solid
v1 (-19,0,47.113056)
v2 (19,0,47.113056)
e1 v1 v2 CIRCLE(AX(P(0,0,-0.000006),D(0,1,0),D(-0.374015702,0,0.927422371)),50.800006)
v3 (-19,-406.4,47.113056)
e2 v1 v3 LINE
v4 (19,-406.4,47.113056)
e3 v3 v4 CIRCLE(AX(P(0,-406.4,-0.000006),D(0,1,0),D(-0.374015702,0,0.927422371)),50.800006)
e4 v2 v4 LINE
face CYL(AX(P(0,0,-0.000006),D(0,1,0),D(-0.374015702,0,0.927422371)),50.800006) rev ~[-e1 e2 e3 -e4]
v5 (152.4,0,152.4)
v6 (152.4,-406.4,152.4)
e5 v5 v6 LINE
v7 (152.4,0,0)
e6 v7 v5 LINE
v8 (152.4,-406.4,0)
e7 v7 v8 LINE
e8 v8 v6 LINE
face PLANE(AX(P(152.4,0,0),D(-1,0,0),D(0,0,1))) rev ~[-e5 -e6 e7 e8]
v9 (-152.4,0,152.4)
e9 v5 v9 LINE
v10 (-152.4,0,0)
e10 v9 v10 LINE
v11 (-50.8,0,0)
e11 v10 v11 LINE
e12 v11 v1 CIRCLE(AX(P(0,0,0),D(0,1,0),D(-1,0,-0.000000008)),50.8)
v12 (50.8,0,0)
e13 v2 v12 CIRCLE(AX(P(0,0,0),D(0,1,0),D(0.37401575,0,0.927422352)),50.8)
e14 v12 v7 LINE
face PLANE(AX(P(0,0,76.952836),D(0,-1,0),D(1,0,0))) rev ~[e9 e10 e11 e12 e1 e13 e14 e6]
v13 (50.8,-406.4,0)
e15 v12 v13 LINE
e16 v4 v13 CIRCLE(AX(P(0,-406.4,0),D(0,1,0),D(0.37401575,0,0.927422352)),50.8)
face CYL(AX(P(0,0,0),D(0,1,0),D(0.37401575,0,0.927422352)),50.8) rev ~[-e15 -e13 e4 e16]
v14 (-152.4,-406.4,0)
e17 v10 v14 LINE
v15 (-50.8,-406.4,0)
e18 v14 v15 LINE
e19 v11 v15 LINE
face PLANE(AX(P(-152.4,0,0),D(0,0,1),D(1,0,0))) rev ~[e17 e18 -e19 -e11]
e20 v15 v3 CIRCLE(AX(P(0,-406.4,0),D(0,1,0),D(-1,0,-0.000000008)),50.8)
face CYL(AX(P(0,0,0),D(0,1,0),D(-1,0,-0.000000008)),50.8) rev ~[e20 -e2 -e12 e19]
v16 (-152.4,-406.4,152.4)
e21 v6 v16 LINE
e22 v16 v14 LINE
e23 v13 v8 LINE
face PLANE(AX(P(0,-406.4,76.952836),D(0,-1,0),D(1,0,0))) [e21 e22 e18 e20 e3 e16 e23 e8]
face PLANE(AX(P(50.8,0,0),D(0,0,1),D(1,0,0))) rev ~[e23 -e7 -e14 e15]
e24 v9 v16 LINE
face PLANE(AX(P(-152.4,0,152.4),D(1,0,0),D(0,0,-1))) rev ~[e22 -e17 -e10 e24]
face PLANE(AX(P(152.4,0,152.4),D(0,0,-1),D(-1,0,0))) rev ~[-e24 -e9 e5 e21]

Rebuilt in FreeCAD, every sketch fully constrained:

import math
import FreeCAD as App
import Part
import Sketcher
Q = App.Units.Quantity

doc = App.newDocument("Part")
body = doc.addObject("PartDesign::Body", "Body")

sketch1 = body.newObject("Sketcher::SketchObject", "Sketch")
sketch1.AttachmentSupport = (doc.getObject("XZ_Plane"), [""])
sketch1.MapMode = "FlatFace"
sketch1.addGeometry([
    Part.ArcOfCircle(Part.Circle(App.Vector(0, 0, 0), App.Vector(0, 0, 1), 51), math.radians(0), math.radians(68)),
    Part.LineSegment(App.Vector(51, 0, 0), App.Vector(152, 0, 0)),
    Part.LineSegment(App.Vector(152, 0, 0), App.Vector(152, 152, 0)),
    Part.LineSegment(App.Vector(152, 152, 0), App.Vector(-152, 152, 0)),
    Part.LineSegment(App.Vector(-152, 152, 0), App.Vector(-152, 0, 0)),
    Part.LineSegment(App.Vector(-152, 0, 0), App.Vector(-51, 0, 0)),
    Part.ArcOfCircle(Part.Circle(App.Vector(0, 0, 0), App.Vector(0, 0, 1), 51), math.radians(112), math.radians(180)),
    Part.ArcOfCircle(Part.Circle(App.Vector(0, 0, 0), App.Vector(0, 0, 1), 51), math.radians(68), math.radians(112)),
], False)
sketch1.addConstraint([
    Sketcher.Constraint("Coincident", 0, 1, 1, 1),
    Sketcher.Constraint("Coincident", 1, 2, 2, 1),
    Sketcher.Constraint("Coincident", 2, 2, 3, 1),
    Sketcher.Constraint("Coincident", 3, 2, 4, 1),
    Sketcher.Constraint("Coincident", 4, 2, 5, 1),
    Sketcher.Constraint("Coincident", 5, 2, 6, 2),
    Sketcher.Constraint("Tangent", 6, 1, 7, 2),
    Sketcher.Constraint("Tangent", 7, 1, 0, 2),
    Sketcher.Constraint("Horizontal", 1),
    Sketcher.Constraint("Vertical", 2),
    Sketcher.Constraint("Horizontal", 3),
    Sketcher.Constraint("Vertical", 4),
    Sketcher.Constraint("Horizontal", 5),
    Sketcher.Constraint("Coincident", 0, 3, -1, 1),
    Sketcher.Constraint("Coincident", 6, 3, -1, 1),
    Sketcher.Constraint("Symmetric", 1, 2, 4, 2, -1, 1),
    Sketcher.Constraint("PointOnObject", 0, 1, -1),
    Sketcher.Constraint("Horizontal", 6, 1, 7, 1),
    Sketcher.Constraint("Radius", 0, Q("2 in")),
    Sketcher.Constraint("DistanceX", 1, 1, 1, 2, Q("4 in")),
    Sketcher.Constraint("DistanceY", 2, 1, 2, 2, Q("6 in")),
    Sketcher.Constraint("DistanceX", 6, 1, -1, 1, 19.0),
])
pad1 = body.newObject("PartDesign::Pad", "Pad")
pad1.Profile = sketch1
pad1.Length = Q("16 in")

doc.recompute()
